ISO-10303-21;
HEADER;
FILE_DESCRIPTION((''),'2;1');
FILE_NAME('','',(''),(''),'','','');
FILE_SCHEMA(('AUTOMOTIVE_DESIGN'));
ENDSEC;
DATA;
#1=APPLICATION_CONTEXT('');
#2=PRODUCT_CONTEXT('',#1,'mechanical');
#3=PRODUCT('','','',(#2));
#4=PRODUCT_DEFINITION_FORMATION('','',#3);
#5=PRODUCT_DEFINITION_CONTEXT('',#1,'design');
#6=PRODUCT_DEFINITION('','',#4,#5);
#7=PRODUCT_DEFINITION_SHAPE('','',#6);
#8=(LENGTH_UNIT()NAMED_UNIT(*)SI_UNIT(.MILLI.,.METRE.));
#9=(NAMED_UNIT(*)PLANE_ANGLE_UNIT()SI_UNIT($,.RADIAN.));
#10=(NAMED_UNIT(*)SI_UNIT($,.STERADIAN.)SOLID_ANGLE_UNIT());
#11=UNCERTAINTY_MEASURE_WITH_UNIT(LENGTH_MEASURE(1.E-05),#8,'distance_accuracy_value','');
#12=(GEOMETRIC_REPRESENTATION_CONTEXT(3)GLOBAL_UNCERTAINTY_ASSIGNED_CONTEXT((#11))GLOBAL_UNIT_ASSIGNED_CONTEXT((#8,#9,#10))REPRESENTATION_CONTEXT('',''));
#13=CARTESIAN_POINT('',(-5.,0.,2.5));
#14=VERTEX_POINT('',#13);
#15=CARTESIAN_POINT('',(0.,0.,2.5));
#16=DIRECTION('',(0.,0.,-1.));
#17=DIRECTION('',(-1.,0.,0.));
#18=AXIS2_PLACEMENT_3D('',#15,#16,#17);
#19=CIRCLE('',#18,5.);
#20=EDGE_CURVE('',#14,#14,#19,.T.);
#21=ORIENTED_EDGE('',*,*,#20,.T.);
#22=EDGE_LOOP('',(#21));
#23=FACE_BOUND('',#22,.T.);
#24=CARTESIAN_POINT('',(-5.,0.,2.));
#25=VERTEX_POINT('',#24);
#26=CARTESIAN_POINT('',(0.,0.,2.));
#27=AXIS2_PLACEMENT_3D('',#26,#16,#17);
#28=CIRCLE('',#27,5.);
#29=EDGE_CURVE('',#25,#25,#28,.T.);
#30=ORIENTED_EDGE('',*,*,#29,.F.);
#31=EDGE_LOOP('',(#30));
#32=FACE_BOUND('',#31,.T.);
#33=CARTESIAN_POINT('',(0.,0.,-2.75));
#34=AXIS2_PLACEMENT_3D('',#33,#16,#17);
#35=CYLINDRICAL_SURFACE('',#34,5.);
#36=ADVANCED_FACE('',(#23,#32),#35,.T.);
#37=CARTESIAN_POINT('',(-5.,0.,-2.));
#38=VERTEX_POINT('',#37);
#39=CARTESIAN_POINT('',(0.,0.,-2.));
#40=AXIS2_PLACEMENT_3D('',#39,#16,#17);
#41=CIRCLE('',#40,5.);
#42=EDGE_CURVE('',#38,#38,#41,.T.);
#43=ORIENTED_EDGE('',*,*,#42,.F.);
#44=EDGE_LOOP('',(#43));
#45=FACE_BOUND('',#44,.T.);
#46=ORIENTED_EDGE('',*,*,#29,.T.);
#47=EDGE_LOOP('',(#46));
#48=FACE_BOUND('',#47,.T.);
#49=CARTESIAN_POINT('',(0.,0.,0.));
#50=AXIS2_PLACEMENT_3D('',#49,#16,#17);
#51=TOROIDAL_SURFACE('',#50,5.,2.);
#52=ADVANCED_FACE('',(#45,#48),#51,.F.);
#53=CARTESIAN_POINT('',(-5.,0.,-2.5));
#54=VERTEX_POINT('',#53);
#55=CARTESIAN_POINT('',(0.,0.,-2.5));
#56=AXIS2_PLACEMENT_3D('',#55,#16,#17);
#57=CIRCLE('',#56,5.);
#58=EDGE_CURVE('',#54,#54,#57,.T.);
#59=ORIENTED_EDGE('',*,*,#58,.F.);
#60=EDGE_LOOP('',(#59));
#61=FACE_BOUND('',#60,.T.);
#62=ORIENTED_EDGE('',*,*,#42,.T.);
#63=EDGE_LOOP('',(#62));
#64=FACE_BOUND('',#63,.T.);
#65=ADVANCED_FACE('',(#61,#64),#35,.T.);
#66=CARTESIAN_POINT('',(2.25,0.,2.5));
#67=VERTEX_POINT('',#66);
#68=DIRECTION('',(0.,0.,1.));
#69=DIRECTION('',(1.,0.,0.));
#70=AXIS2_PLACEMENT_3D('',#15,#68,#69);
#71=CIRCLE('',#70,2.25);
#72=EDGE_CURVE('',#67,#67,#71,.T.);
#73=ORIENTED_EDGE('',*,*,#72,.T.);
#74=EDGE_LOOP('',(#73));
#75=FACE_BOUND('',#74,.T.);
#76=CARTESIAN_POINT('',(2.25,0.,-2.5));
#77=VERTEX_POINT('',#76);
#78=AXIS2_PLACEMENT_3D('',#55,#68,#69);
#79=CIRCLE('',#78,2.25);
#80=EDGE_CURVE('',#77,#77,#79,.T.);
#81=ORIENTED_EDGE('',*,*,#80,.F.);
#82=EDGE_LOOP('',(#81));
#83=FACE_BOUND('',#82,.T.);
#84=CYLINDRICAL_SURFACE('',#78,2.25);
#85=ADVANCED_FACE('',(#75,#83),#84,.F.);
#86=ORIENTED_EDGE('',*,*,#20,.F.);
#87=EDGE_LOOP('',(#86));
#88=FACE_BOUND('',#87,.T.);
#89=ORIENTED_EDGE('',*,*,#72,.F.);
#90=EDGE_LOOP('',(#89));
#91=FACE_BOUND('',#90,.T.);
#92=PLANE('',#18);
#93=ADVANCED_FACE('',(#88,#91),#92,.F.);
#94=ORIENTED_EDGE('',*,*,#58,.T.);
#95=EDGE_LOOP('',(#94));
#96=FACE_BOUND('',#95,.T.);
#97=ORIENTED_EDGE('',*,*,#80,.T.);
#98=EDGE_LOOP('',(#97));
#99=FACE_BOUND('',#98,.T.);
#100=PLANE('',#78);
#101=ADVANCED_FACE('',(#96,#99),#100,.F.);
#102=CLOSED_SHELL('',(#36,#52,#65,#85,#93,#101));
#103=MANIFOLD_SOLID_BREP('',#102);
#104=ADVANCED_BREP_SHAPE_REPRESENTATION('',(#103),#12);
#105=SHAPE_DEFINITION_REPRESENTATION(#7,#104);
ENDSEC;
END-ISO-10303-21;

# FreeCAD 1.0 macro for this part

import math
import FreeCAD as App
import Part
import Sketcher

doc = App.newDocument("Part")
body = doc.addObject("PartDesign::Body", "Body")

# Sketch on XZ plane
sketch1 = body.newObject("Sketcher::SketchObject", "Sketch")
sketch1.AttachmentSupport = (doc.getObject("XZ_Plane"), [""])
sketch1.MapMode = "FlatFace"
sketch1.addGeometry(Part.LineSegment(App.Vector(0, 2.5, 0), App.Vector(5, 2.5, 0)), False)
sketch1.addGeometry(Part.LineSegment(App.Vector(5, 2.5, 0), App.Vector(5, 2, 0)), False)
sketch1.addGeometry(Part.ArcOfCircle(Part.Circle(App.Vector(5, 0, 0), App.Vector(0, 0, 1), 2), math.radians(90), math.radians(270)), False)
sketch1.addGeometry(Part.LineSegment(App.Vector(5, -2, 0), App.Vector(5, -2.5, 0)), False)
sketch1.addGeometry(Part.LineSegment(App.Vector(5, -2.5, 0), App.Vector(0, -2.5, 0)), False)
sketch1.addGeometry(Part.LineSegment(App.Vector(0, -2.5, 0), App.Vector(0, 2.5, 0)), False)
sketch1.addConstraint(Sketcher.Constraint("Coincident", 0, 2, 1, 1))
sketch1.addConstraint(Sketcher.Constraint("Coincident", 1, 2, 2, 1))
sketch1.addConstraint(Sketcher.Constraint("Coincident", 2, 2, 3, 1))
sketch1.addConstraint(Sketcher.Constraint("Coincident", 3, 2, 4, 1))
sketch1.addConstraint(Sketcher.Constraint("Coincident", 4, 2, 5, 1))
sketch1.addConstraint(Sketcher.Constraint("Coincident", 5, 2, 0, 1))
sketch1.addConstraint(Sketcher.Constraint("Horizontal", 0))
sketch1.addConstraint(Sketcher.Constraint("Vertical", 1))
sketch1.addConstraint(Sketcher.Constraint("Vertical", 3))
sketch1.addConstraint(Sketcher.Constraint("Horizontal", 4))
sketch1.addConstraint(Sketcher.Constraint("Vertical", 5))
sketch1.addConstraint(Sketcher.Constraint("Symmetric", 4, 2, 5, 2, -1, 1))
sketch1.addConstraint(Sketcher.Constraint("Symmetric", 1, 2, 2, 2, -1))
sketch1.addConstraint(Sketcher.Constraint("Vertical", 2, 3, 0, 2))
sketch1.addConstraint(Sketcher.Constraint("Equal", 4, 5))
sketch1.addConstraint(Sketcher.Constraint("Radius", 2, 2.0))
sketch1.addConstraint(Sketcher.Constraint("DistanceX", 0, 1, 0, 2, 5.0))
revolution = body.newObject("PartDesign::Revolution", "Revolution")
revolution.Profile = sketch1
revolution.ReferenceAxis = (sketch1, ["V_Axis"])
revolution.Angle = 360

# Sketch on XY plane
sketch2 = body.newObject("Sketcher::SketchObject", "Sketch001")
sketch2.AttachmentSupport = (doc.getObject("XY_Plane"), [""])
sketch2.MapMode = "FlatFace"
sketch2.addGeometry(Part.Circle(App.Vector(0, 0, 0), App.Vector(0, 0, 1), 2.2), False)
sketch2.addConstraint(Sketcher.Constraint("Coincident", 0, 3, -1, 1))
sketch2.addConstraint(Sketcher.Constraint("Diameter", 0, 4.5))
pocket1 = body.newObject("PartDesign::Pocket", "Pocket")
pocket1.Profile = sketch2
pocket1.Type = "ThroughAll"
pocket1.Midplane = True

doc.recompute()
